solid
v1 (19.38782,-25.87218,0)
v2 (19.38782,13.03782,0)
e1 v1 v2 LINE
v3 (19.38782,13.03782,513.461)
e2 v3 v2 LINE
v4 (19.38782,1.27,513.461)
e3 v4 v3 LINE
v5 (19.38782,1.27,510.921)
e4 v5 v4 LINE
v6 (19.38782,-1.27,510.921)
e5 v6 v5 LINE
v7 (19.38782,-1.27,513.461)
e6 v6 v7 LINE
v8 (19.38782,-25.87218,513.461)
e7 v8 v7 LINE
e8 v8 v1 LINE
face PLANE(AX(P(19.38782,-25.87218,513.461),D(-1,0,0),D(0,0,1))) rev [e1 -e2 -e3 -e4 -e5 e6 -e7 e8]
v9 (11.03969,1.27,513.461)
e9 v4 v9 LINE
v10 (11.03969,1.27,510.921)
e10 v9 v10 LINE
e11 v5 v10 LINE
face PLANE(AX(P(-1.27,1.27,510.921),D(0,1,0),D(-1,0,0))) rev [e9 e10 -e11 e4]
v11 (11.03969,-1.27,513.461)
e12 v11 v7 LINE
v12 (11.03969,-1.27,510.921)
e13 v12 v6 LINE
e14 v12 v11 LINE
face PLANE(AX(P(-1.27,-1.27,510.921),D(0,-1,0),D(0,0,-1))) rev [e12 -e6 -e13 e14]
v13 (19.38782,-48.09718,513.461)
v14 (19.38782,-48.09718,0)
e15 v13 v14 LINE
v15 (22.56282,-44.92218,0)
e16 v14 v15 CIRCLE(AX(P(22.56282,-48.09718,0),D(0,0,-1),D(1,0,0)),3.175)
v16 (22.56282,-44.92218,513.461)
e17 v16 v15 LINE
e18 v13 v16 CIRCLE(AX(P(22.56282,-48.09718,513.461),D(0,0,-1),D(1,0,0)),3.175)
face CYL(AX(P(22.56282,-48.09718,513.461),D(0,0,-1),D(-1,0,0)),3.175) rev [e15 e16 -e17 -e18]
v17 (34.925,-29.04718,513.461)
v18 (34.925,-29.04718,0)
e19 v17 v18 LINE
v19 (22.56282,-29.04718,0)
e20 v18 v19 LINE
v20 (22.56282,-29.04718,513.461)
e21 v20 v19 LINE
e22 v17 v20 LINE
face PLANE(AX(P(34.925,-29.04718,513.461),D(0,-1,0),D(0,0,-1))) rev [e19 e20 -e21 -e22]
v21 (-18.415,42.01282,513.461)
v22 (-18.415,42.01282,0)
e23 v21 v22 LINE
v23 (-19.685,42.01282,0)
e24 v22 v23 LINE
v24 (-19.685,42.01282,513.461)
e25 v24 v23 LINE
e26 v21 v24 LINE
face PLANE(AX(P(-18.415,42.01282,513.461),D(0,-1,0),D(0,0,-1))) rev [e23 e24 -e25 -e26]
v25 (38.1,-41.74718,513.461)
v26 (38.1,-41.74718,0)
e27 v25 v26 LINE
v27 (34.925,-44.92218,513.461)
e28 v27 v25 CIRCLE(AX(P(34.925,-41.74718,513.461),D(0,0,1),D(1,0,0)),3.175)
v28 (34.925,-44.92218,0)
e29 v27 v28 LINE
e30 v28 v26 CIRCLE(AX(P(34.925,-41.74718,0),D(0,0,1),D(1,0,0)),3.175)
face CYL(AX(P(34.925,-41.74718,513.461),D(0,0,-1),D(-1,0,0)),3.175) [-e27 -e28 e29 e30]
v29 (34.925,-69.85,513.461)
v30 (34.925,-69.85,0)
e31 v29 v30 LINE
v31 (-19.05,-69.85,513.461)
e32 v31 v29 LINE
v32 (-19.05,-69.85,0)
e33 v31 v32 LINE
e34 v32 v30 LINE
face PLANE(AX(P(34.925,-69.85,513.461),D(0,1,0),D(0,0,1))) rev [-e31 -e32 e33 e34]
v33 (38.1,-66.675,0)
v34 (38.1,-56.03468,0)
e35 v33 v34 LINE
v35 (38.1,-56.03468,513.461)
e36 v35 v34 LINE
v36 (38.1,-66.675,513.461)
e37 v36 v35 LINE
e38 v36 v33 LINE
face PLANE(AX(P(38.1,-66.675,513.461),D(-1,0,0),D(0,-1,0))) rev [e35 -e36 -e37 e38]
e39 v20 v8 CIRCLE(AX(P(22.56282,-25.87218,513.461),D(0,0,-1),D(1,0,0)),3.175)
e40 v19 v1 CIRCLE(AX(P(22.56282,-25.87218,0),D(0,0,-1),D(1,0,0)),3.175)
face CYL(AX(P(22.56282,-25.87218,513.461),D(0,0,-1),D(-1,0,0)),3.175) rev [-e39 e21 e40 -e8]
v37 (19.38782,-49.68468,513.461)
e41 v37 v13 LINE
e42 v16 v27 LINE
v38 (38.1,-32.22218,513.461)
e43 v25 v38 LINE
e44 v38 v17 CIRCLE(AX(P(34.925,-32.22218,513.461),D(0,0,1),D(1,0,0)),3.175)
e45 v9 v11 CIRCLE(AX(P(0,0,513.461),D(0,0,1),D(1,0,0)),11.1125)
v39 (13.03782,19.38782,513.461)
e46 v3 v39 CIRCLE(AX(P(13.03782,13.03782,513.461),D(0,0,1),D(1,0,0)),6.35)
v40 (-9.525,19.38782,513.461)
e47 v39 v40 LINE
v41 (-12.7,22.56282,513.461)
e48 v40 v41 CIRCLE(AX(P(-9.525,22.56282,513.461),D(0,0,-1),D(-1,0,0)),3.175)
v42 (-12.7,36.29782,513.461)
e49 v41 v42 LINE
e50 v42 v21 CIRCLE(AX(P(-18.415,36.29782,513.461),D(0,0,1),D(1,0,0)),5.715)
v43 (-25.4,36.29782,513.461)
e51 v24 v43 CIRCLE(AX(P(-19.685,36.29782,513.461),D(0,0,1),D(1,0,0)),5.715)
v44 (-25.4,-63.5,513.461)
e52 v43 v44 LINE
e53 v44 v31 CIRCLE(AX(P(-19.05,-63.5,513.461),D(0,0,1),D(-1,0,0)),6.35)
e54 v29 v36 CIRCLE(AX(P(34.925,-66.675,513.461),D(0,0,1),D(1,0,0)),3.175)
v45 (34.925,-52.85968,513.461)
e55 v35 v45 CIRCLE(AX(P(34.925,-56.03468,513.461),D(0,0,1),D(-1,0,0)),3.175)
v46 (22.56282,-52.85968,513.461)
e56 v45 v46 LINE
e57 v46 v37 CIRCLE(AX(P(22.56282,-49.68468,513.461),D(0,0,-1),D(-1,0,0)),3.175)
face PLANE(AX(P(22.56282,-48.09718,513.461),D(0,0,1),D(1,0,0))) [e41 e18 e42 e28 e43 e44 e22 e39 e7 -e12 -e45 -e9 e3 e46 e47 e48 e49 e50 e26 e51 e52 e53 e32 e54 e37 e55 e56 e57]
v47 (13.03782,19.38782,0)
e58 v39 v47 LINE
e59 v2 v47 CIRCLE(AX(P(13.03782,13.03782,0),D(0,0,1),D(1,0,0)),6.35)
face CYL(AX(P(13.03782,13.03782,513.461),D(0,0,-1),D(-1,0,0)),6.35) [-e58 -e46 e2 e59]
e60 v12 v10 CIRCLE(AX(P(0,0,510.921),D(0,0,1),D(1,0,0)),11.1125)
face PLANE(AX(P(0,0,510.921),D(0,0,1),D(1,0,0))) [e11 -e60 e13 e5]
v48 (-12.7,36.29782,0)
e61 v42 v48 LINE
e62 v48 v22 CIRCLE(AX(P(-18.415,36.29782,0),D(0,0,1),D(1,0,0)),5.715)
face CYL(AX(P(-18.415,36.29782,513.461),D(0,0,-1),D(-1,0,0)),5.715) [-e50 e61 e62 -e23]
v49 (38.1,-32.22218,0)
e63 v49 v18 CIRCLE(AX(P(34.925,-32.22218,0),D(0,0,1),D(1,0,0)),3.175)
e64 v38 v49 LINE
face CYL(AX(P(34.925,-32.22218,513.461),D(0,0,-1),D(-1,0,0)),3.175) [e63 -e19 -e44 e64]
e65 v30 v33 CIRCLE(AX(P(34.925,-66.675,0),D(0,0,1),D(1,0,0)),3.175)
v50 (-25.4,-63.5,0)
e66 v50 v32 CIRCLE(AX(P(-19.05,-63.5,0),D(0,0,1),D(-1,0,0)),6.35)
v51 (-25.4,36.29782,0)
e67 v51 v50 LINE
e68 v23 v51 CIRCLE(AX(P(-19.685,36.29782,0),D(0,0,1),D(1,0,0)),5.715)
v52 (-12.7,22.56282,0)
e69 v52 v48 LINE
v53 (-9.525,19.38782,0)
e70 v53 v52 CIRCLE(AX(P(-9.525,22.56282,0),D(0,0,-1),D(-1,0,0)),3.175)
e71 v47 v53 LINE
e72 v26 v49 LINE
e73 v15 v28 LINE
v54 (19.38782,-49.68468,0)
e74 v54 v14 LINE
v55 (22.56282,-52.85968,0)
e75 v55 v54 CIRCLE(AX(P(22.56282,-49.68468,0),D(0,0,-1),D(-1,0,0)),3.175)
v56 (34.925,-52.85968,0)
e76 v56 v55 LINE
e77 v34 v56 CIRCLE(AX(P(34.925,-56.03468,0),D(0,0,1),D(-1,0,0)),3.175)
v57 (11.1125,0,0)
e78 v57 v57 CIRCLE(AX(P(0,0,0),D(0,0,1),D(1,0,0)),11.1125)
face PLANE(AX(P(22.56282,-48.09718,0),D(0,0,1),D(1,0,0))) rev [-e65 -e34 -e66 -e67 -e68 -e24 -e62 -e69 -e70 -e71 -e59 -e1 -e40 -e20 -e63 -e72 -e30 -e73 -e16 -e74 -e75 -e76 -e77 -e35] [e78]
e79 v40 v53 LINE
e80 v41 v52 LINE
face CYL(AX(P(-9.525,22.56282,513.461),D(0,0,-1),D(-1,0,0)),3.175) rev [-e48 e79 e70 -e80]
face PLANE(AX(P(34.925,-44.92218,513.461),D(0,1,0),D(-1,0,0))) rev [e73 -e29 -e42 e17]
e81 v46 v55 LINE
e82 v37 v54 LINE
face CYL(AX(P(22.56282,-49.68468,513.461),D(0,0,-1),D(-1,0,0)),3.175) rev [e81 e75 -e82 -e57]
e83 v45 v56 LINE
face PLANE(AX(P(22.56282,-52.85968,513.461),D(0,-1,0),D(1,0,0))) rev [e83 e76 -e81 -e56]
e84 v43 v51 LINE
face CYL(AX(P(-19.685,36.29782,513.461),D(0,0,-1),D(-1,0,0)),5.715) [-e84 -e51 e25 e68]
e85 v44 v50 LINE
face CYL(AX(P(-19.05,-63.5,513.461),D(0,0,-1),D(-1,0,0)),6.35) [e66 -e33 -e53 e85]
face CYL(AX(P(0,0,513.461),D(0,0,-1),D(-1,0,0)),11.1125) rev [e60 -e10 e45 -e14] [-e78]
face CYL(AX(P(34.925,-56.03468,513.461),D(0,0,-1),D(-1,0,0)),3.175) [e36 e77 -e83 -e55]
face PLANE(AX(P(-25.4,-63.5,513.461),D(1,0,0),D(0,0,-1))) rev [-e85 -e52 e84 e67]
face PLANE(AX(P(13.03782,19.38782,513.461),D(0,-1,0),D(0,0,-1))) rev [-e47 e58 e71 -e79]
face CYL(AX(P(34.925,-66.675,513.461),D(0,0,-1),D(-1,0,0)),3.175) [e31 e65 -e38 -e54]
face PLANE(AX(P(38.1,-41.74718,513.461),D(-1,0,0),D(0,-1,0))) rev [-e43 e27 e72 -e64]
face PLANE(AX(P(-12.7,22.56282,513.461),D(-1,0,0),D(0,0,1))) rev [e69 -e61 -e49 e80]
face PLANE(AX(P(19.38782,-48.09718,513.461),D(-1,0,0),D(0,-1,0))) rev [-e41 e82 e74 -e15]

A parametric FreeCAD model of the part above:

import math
import FreeCAD as App
import Part
import Sketcher
Q = App.Units.Quantity

doc = App.newDocument("Part")
body = doc.addObject("PartDesign::Body", "Body")

# Sketch on XY plane
sketch1 = body.newObject("Sketcher::SketchObject", "Sketch")
sketch1.AttachmentSupport = (doc.getObject("XY_Plane"), [""])
sketch1.MapMode = "FlatFace"
sketch1.addGeometry([
    Part.LineSegment(App.Vector(-19.1, -69.8, 0), App.Vector(34.9, -69.8, 0)),  # 0
    Part.ArcOfCircle(Part.Circle(App.Vector(34.9, -66.7, 0), App.Vector(0, 0, 1), 3.2), math.radians(-90), math.radians(0)),  # 1
    Part.LineSegment(App.Vector(38.1, -66.7, 0), App.Vector(38.1, -56, 0)),  # 2
    Part.ArcOfCircle(Part.Circle(App.Vector(34.9, -56, 0), App.Vector(0, 0, 1), 3.2), math.radians(0), math.radians(90)),  # 3
    Part.LineSegment(App.Vector(34.9, -52.9, 0), App.Vector(22.6, -52.9, 0)),  # 4
    Part.ArcOfCircle(Part.Circle(App.Vector(22.6, -49.7, 0), App.Vector(0, 0, 1), 3.2), math.radians(-180), math.radians(-90)),  # 5
    Part.LineSegment(App.Vector(19.4, -49.7, 0), App.Vector(19.4, -48.1, 0)),  # 6
    Part.ArcOfCircle(Part.Circle(App.Vector(22.6, -48.1, 0), App.Vector(0, 0, 1), 3.2), math.radians(90), math.radians(180)),  # 7
    Part.LineSegment(App.Vector(22.6, -44.9, 0), App.Vector(34.9, -44.9, 0)),  # 8
    Part.ArcOfCircle(Part.Circle(App.Vector(34.9, -41.7, 0), App.Vector(0, 0, 1), 3.2), math.radians(-90), math.radians(0)),  # 9
    Part.LineSegment(App.Vector(38.1, -41.7, 0), App.Vector(38.1, -32.2, 0)),  # 10
    Part.ArcOfCircle(Part.Circle(App.Vector(34.9, -32.2, 0), App.Vector(0, 0, 1), 3.2), math.radians(0), math.radians(90)),  # 11
    Part.LineSegment(App.Vector(34.9, -29, 0), App.Vector(22.6, -29, 0)),  # 12
    Part.ArcOfCircle(Part.Circle(App.Vector(22.6, -25.9, 0), App.Vector(0, 0, 1), 3.2), math.radians(-180), math.radians(-90)),  # 13
    Part.LineSegment(App.Vector(19.4, -25.9, 0), App.Vector(19.4, 13, 0)),  # 14
    Part.ArcOfCircle(Part.Circle(App.Vector(13, 13, 0), App.Vector(0, 0, 1), 6.3), math.radians(0), math.radians(90)),  # 15
    Part.LineSegment(App.Vector(13, 19.4, 0), App.Vector(-9.5, 19.4, 0)),  # 16
    Part.ArcOfCircle(Part.Circle(App.Vector(-9.5, 22.6, 0), App.Vector(0, 0, 1), 3.2), math.radians(-180), math.radians(-90)),  # 17
    Part.LineSegment(App.Vector(-12.7, 22.6, 0), App.Vector(-12.7, 36.3, 0)),  # 18
    Part.ArcOfCircle(Part.Circle(App.Vector(-18.4, 36.3, 0), App.Vector(0, 0, 1), 5.7), math.radians(0), math.radians(90)),  # 19
    Part.LineSegment(App.Vector(-18.4, 42, 0), App.Vector(-19.7, 42, 0)),  # 20
    Part.ArcOfCircle(Part.Circle(App.Vector(-19.7, 36.3, 0), App.Vector(0, 0, 1), 5.7), math.radians(90), math.radians(180)),  # 21
    Part.LineSegment(App.Vector(-25.4, 36.3, 0), App.Vector(-25.4, -63.5, 0)),  # 22
    Part.ArcOfCircle(Part.Circle(App.Vector(-19.1, -63.5, 0), App.Vector(0, 0, 1), 6.3), math.radians(180), math.radians(270)),  # 23
    Part.Circle(App.Vector(0, 0, 0), App.Vector(0, 0, 1), 11.1),  # 24
], False)
sketch1.addConstraint([
    Sketcher.Constraint("Tangent", 0, 2, 1, 1),
    Sketcher.Constraint("Tangent", 1, 2, 2, 1),
    Sketcher.Constraint("Tangent", 2, 2, 3, 1),
    Sketcher.Constraint("Tangent", 3, 2, 4, 1),
    Sketcher.Constraint("Tangent", 4, 2, 5, 2),
    Sketcher.Constraint("Tangent", 5, 1, 6, 1),
    Sketcher.Constraint("Tangent", 6, 2, 7, 2),
    Sketcher.Constraint("Tangent", 7, 1, 8, 1),
    Sketcher.Constraint("Tangent", 8, 2, 9, 1),
    Sketcher.Constraint("Tangent", 9, 2, 10, 1),
    Sketcher.Constraint("Tangent", 10, 2, 11, 1),
    Sketcher.Constraint("Tangent", 11, 2, 12, 1),
    Sketcher.Constraint("Tangent", 12, 2, 13, 2),
    Sketcher.Constraint("Tangent", 13, 1, 14, 1),
    Sketcher.Constraint("Tangent", 14, 2, 15, 1),
    Sketcher.Constraint("Tangent", 15, 2, 16, 1),
    Sketcher.Constraint("Tangent", 16, 2, 17, 2),
    Sketcher.Constraint("Tangent", 17, 1, 18, 1),
    Sketcher.Constraint("Tangent", 18, 2, 19, 1),
    Sketcher.Constraint("Tangent", 19, 2, 20, 1),
    Sketcher.Constraint("Tangent", 20, 2, 21, 1),
    Sketcher.Constraint("Tangent", 21, 2, 22, 1),
    Sketcher.Constraint("Tangent", 22, 2, 23, 1),
    Sketcher.Constraint("Tangent", 23, 2, 0, 1),
    Sketcher.Constraint("Horizontal", 0),
    Sketcher.Constraint("Vertical", 2),
    Sketcher.Constraint("Horizontal", 4),
    Sketcher.Constraint("Vertical", 6),
    Sketcher.Constraint("Horizontal", 8),
    Sketcher.Constraint("Vertical", 10),
    Sketcher.Constraint("Horizontal", 12),
    Sketcher.Constraint("Vertical", 14),
    Sketcher.Constraint("Horizontal", 16),
    Sketcher.Constraint("Vertical", 18),
    Sketcher.Constraint("Horizontal", 20),
    Sketcher.Constraint("Vertical", 22),
    Sketcher.Constraint("Coincident", 24, 3, -1, 1),
    Sketcher.Constraint("Equal", 1, 3),
    Sketcher.Constraint("Equal", 3, 5),
    Sketcher.Constraint("Equal", 5, 7),
    Sketcher.Constraint("Equal", 7, 9),
    Sketcher.Constraint("Equal", 9, 11),
    Sketcher.Constraint("Equal", 11, 13),
    Sketcher.Constraint("Equal", 13, 17),
    Sketcher.Constraint("Equal", 19, 21),
    Sketcher.Constraint("Equal", 15, 23),
    Sketcher.Constraint("Vertical", 3, 3, 9, 3),
    Sketcher.Constraint("Vertical", 7, 3, 13, 3),
    Sketcher.Constraint("Radius", 15, Q("0.25 in")),
    Sketcher.Constraint("Diameter", 24, Q("0.875 in")),
    Sketcher.Constraint("DistanceX", 21, 2, -1, 1, Q("1 in")),
    Sketcher.Constraint("Radius", 1, Q("0.125 in")),
    Sketcher.Constraint("Radius", 19, Q("0.225 in")),
    Sketcher.Constraint("DistanceX", 20, 2, 20, 1, Q("0.05 in")),
    Sketcher.Constraint("DistanceY", 23, 3, -1, 1, Q("2.5 in")),
    Sketcher.Constraint("DistanceX", -1, 1, 1, 2, Q("1.5 in")),
    Sketcher.Constraint("DistanceY", 8, 2, 10, 2, Q("0.5 in")),
    Sketcher.Constraint("DistanceY", 6, 1, 6, 2, Q("0.0625 in")),
    Sketcher.Constraint("DistanceX", 4, 2, 4, 1, Q("0.4867 in")),
    Sketcher.Constraint("DistanceY", 14, 1, 14, 2, Q("38.91 mm")),
    Sketcher.Constraint("DistanceY", 18, 1, 18, 2, Q("13.735 mm")),
    Sketcher.Constraint("DistanceY", -1, 1, 15, 3, Q("0.5133 in")),
])
pad1 = body.newObject("PartDesign::Pad", "Pad")
pad1.Profile = sketch1
pad1.Length = Q("20.215 in")

# Sketch on XY plane
sketch2 = body.newObject("Sketcher::SketchObject", "Sketch001")
sketch2.AttachmentSupport = (doc.getObject("XY_Plane"), [""])
sketch2.MapMode = "FlatFace"
sketch2.AttachmentOffset = App.Placement(App.Vector(0, 0, 20.215 * 25.4), App.Rotation())
sketch2.addGeometry([
    Part.LineSegment(App.Vector(-1.3, 1.3, 0), App.Vector(-1.3, -1.3, 0)),
    Part.LineSegment(App.Vector(-1.3, -1.3, 0), App.Vector(19.4, -1.3, 0)),
    Part.LineSegment(App.Vector(19.4, -1.3, 0), App.Vector(19.4, 1.3, 0)),
    Part.LineSegment(App.Vector(19.4, 1.3, 0), App.Vector(-1.3, 1.3, 0)),
], False)
sketch2.addConstraint([
    Sketcher.Constraint("Coincident", 0, 2, 1, 1),
    Sketcher.Constraint("Coincident", 1, 2, 2, 1),
    Sketcher.Constraint("Coincident", 2, 2, 3, 1),
    Sketcher.Constraint("Coincident", 3, 2, 0, 1),
    Sketcher.Constraint("Vertical", 0),
    Sketcher.Constraint("Horizontal", 1),
    Sketcher.Constraint("Vertical", 2),
    Sketcher.Constraint("Horizontal", 3),
    Sketcher.Constraint("DistanceY", 0, 2, 0, 1, Q("0.1 in")),
    Sketcher.Constraint("DistanceX", 0, 2, -1, 1, Q("0.05 in")),
    Sketcher.Constraint("DistanceY", 0, 2, -1, 1, Q("0.05 in")),
    Sketcher.Constraint("DistanceX", 1, 1, 1, 2, Q("0.8133 in")),
])
pocket1 = body.newObject("PartDesign::Pocket", "Pocket")
pocket1.Profile = sketch2
pocket1.Length = Q("0.1 in")

doc.recompute()
